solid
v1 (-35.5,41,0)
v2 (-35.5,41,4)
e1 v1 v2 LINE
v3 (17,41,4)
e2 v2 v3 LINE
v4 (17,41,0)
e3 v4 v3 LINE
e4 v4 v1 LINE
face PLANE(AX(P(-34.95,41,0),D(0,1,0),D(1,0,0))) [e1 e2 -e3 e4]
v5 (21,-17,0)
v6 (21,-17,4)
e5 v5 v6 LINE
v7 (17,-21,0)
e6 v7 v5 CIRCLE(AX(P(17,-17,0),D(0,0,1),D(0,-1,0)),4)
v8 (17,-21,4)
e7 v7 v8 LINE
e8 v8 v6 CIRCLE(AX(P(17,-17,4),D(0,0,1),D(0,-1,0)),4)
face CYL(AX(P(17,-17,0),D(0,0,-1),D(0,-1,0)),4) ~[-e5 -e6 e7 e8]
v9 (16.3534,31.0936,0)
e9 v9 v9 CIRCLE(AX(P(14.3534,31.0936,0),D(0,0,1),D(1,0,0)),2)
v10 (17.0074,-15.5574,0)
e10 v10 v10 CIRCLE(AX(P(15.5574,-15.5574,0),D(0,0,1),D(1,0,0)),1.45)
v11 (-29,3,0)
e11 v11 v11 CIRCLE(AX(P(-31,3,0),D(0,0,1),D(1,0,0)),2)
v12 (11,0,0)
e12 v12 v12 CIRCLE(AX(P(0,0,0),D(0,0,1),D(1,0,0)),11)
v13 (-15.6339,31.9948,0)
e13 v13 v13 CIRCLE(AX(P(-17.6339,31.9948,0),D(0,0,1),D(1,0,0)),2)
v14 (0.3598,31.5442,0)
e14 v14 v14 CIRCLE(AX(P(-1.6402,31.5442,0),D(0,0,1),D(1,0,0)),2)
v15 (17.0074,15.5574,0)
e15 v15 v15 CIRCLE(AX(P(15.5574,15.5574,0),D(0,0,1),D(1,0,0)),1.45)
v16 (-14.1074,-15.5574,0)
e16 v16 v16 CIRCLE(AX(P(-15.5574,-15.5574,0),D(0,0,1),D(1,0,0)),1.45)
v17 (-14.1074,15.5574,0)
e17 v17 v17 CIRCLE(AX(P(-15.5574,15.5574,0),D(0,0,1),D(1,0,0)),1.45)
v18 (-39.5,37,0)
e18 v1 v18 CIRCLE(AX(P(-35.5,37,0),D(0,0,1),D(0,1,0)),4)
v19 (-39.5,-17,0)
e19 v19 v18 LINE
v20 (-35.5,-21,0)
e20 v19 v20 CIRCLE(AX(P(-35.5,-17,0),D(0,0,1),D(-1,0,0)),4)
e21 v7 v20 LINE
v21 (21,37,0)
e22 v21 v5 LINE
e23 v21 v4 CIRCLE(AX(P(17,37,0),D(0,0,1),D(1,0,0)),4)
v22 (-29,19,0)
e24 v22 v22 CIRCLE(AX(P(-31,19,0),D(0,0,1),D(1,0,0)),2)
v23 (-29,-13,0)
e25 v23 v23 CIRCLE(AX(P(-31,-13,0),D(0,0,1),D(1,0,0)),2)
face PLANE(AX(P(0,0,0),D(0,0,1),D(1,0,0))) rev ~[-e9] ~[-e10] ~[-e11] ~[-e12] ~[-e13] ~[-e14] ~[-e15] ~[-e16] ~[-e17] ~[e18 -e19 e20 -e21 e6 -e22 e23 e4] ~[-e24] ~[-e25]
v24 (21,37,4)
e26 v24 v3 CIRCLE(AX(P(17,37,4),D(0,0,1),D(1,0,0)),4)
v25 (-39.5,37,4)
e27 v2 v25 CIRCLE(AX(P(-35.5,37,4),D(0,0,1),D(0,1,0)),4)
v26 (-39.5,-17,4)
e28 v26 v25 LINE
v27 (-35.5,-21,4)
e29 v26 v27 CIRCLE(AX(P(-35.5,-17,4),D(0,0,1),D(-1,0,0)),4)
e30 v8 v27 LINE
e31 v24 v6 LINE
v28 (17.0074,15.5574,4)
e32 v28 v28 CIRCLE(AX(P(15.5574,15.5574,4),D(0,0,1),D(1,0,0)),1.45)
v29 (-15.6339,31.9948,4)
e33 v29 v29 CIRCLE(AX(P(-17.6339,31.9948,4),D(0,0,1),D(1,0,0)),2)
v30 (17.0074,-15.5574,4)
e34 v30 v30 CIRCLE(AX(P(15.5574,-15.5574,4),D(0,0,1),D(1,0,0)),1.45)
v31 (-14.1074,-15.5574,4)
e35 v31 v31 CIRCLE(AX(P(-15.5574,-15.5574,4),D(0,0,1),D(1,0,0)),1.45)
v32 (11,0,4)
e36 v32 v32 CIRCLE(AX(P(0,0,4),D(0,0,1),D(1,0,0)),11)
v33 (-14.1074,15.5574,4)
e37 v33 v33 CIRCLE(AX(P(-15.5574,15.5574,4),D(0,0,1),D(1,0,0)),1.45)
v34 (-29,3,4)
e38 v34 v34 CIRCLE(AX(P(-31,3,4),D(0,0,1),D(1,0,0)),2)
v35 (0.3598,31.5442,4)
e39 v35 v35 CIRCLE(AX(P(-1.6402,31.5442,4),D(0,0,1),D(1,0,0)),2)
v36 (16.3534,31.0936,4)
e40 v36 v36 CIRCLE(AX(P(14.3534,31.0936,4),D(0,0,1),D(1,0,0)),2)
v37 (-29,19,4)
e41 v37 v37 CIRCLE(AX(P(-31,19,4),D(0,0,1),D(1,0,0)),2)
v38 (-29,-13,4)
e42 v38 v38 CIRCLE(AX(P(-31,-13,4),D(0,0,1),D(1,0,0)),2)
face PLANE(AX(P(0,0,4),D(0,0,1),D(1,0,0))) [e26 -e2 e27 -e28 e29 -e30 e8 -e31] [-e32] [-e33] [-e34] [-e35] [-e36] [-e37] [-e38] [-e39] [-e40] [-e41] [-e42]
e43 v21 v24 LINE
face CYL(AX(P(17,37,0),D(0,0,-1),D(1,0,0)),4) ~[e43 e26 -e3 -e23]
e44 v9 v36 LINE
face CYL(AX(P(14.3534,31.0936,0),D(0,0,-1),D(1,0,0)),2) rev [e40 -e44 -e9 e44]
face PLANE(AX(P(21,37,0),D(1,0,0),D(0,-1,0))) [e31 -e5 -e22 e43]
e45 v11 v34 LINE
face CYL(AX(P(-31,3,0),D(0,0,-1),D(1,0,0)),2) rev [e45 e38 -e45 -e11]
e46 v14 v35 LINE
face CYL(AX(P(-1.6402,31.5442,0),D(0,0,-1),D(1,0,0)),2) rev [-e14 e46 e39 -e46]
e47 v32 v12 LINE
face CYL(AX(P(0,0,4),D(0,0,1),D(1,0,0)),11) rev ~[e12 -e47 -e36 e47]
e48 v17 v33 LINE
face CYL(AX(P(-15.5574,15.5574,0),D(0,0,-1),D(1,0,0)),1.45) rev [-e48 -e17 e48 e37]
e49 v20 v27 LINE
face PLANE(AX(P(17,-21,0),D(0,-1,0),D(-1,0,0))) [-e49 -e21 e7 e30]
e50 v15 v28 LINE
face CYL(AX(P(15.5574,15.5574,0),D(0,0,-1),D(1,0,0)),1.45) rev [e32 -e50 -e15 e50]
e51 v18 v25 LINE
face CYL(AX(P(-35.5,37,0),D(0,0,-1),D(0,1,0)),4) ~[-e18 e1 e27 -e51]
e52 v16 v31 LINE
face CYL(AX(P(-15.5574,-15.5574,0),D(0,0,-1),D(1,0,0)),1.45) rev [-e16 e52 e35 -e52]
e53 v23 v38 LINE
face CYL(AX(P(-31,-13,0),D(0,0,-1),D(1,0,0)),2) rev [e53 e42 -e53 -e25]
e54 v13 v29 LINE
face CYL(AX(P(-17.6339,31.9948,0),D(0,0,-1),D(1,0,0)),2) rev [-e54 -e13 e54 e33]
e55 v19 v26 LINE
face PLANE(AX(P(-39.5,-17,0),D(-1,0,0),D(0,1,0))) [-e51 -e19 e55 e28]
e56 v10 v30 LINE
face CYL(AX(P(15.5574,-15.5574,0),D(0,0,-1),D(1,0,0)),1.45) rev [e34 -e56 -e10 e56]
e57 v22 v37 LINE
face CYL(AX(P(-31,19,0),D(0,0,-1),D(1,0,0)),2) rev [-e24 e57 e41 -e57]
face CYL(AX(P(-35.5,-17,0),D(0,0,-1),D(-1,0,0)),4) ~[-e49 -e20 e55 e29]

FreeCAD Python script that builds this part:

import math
import FreeCAD as App
import Part
import Sketcher

doc = App.newDocument("Part")
body = doc.addObject("PartDesign::Body", "Body")

# Sketch on XY plane
sketch1 = body.newObject("Sketcher::SketchObject", "Sketch")
sketch1.AttachmentSupport = (doc.getObject("XY_Plane"), [""])
sketch1.MapMode = "FlatFace"
sketch1.addGeometry([
    Part.LineSegment(App.Vector(17, 41, 0), App.Vector(-35.5, 41, 0)),  # 0
    Part.ArcOfCircle(Part.Circle(App.Vector(-35.5, 37, 0), App.Vector(0, 0, 1), 4), math.radians(90), math.radians(180)),  # 1
    Part.LineSegment(App.Vector(-39.5, 37, 0), App.Vector(-39.5, -17, 0)),  # 2
    Part.ArcOfCircle(Part.Circle(App.Vector(-35.5, -17, 0), App.Vector(0, 0, 1), 4), math.radians(180), math.radians(270)),  # 3
    Part.LineSegment(App.Vector(-35.5, -21, 0), App.Vector(17, -21, 0)),  # 4
    Part.ArcOfCircle(Part.Circle(App.Vector(17, -17, 0), App.Vector(0, 0, 1), 4), math.radians(-90), math.radians(0)),  # 5
    Part.LineSegment(App.Vector(21, -17, 0), App.Vector(21, 37, 0)),  # 6
    Part.ArcOfCircle(Part.Circle(App.Vector(17, 37, 0), App.Vector(0, 0, 1), 4), math.radians(0), math.radians(90)),  # 7
    Part.Circle(App.Vector(-31, -13, 0), App.Vector(0, 0, 1), 2),  # 8
    Part.Circle(App.Vector(-15.6, -15.6, 0), App.Vector(0, 0, 1), 1.4),  # 9
    Part.Circle(App.Vector(-31, 3, 0), App.Vector(0, 0, 1), 2),  # 10
    Part.Circle(App.Vector(15.6, -15.6, 0), App.Vector(0, 0, 1), 1.4),  # 11
    Part.Circle(App.Vector(-31, 19, 0), App.Vector(0, 0, 1), 2),  # 12
    Part.Circle(App.Vector(-15.6, 15.6, 0), App.Vector(0, 0, 1), 1.4),  # 13
    Part.Circle(App.Vector(-17.6, 32, 0), App.Vector(0, 0, 1), 2),  # 14
    Part.Circle(App.Vector(15.6, 15.6, 0), App.Vector(0, 0, 1), 1.4),  # 15
    Part.Circle(App.Vector(-1.6, 31.5, 0), App.Vector(0, 0, 1), 2),  # 16
    Part.Circle(App.Vector(14.4, 31.1, 0), App.Vector(0, 0, 1), 2),  # 17
], False)
sketch1.addConstraint([
    Sketcher.Constraint("Tangent", 0, 2, 1, 1),
    Sketcher.Constraint("Tangent", 1, 2, 2, 1),
    Sketcher.Constraint("Tangent", 2, 2, 3, 1),
    Sketcher.Constraint("Tangent", 3, 2, 4, 1),
    Sketcher.Constraint("Tangent", 4, 2, 5, 1),
    Sketcher.Constraint("Tangent", 5, 2, 6, 1),
    Sketcher.Constraint("Tangent", 6, 2, 7, 1),
    Sketcher.Constraint("Tangent", 7, 2, 0, 1),
    Sketcher.Constraint("Horizontal", 0),
    Sketcher.Constraint("Vertical", 2),
    Sketcher.Constraint("Horizontal", 4),
    Sketcher.Constraint("Vertical", 6),
    Sketcher.Constraint("Equal", 1, 3),
    Sketcher.Constraint("Equal", 3, 5),
    Sketcher.Constraint("Equal", 5, 7),
    Sketcher.Constraint("Equal", 8, 10),
    Sketcher.Constraint("Equal", 9, 11),
    Sketcher.Constraint("Equal", 10, 12),
    Sketcher.Constraint("Equal", 11, 13),
    Sketcher.Constraint("Equal", 12, 14),
    Sketcher.Constraint("Equal", 13, 15),
    Sketcher.Constraint("Equal", 14, 16),
    Sketcher.Constraint("Equal", 16, 17),
    Sketcher.Constraint("Symmetric", 11, 3, 13, 3, -1, 1),
    Sketcher.Constraint("Symmetric", 9, 3, 15, 3, -1, 1),
    Sketcher.Constraint("Symmetric", 9, 3, 11, 3, -2),
    Sketcher.Constraint("Vertical", 8, 3, 10, 3),
    Sketcher.Constraint("Vertical", 10, 3, 12, 3),
    Sketcher.Constraint("Diameter", 8, 4.0),
    Sketcher.Constraint("Radius", 1, 4.0),
    Sketcher.Constraint("DistanceY", 3, 3, 8, 3, 4.0),
    Sketcher.Constraint("DistanceY", 8, 3, 10, 3, 16.0),
    Sketcher.Constraint("DistanceY", 10, 3, 12, 3, 16.0),
    Sketcher.Constraint("Diameter", 9, 2.9),
    Sketcher.Constraint("DistanceY", 2, 2, 2, 1, 54.0),
    Sketcher.Constraint("DistanceX", 0, 2, 0, 1, 52.5),
    Sketcher.Constraint("DistanceY", -1, 1, 1, 3, 37.0),
    Sketcher.Constraint("DistanceX", -1, 1, 5, 3, 17.0),
    Sketcher.Constraint("DistanceX", 8, 3, -1, 1, 31.0),
    Sketcher.Constraint("DistanceX", 14, 3, -1, 1, 17.634),
    Sketcher.Constraint("DistanceX", 17, 3, 15, 3, 1.204),
    Sketcher.Constraint("DistanceX", 9, 3, -1, 1, 15.5574),
    Sketcher.Constraint("DistanceY", 9, 3, -1, 1, 15.5574),
    Sketcher.Constraint("DistanceY", -1, 1, 14, 3, 31.9948),
    Sketcher.Constraint("DistanceX", 16, 3, -1, 1, 1.6402),
    Sketcher.Constraint("DistanceY", -1, 1, 16, 3, 31.5442),
    Sketcher.Constraint("DistanceY", -1, 1, 17, 3, 31.0936),
])
pad1 = body.newObject("PartDesign::Pad", "Pad")
pad1.Profile = sketch1
pad1.Length = 4

# Sketch on XY plane
sketch2 = body.newObject("Sketcher::SketchObject", "Sketch001")
sketch2.AttachmentSupport = (doc.getObject("XY_Plane"), [""])
sketch2.MapMode = "FlatFace"
sketch2.AttachmentOffset = App.Placement(App.Vector(0, 0, 4), App.Rotation())
sketch2.addGeometry(Part.Circle(App.Vector(0, 0, 0), App.Vector(0, 0, 1), 11), False)
sketch2.addConstraint([
    Sketcher.Constraint("Coincident", 0, 3, -1, 1),
    Sketcher.Constraint("Diameter", 0, 22.0),
])
pocket1 = body.newObject("PartDesign::Pocket", "Pocket")
pocket1.Profile = sketch2
pocket1.Length = 4

doc.recompute()
